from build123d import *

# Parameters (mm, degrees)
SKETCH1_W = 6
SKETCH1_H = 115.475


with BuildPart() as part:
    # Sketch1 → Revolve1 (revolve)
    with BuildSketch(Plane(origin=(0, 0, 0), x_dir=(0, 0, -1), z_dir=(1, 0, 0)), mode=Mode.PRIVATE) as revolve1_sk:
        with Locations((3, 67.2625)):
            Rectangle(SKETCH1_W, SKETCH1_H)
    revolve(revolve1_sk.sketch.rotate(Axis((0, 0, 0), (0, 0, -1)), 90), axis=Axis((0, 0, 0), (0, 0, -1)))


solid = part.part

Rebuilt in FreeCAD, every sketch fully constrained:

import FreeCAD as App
import Part
import Sketcher
from FreeCAD import Vector


def add_polygon(sketch, points):
    """Adds a closed chain of lines whose ends are joined by coincident constraints."""
    first, n = sketch.GeometryCount, len(points)
    for a, b in zip(points, points[1:] + points[:1]):
        sketch.addGeometry(Part.LineSegment(App.Vector(*a, 0), App.Vector(*b, 0)), False)
    for i in range(n):
        sketch.addConstraint(Sketcher.Constraint("Coincident", first + i, 2, first + (i + 1) % n, 1))

doc = App.newDocument("Part")
params = doc.addObject("Spreadsheet::Sheet", "Params")
for row, (alias, value) in enumerate([
    ("sketch1_height", "6 mm"),
    ("revolution_angle", "360 deg"),
], start=1):
    params.set(f"A{row}", alias)
    params.set(f"B{row}", "=" + value)
    params.setAlias(f"B{row}", alias)

body = doc.addObject("PartDesign::Body", "Body")

# Sketch on YZ plane
sketch1 = body.newObject("Sketcher::SketchObject", "Sketch")
sketch1.AttachmentSupport = (doc.getObject("YZ_Plane"), [""])
sketch1.MapMode = "FlatFace"
add_polygon(sketch1, [(125, 0), (9.525, 0), (9.525, -6), (125, -6)])  # lines 0-3
sketch1.addConstraint([
    Sketcher.Constraint("Horizontal", 0),
    Sketcher.Constraint("Vertical", 1),
    Sketcher.Constraint("Horizontal", 2),
    Sketcher.Constraint("Vertical", 3),
    Sketcher.Constraint("PointOnObject", 0, 2, -1),
    Sketcher.Constraint("DistanceY", 1, 2, 1, 1, 6.0),
    Sketcher.Constraint("DistanceX", -1, 1, 2, 2, 125.0),
    Sketcher.Constraint("DistanceX", 0, 2, 0, 1, 115.475),
])
sketch1.setExpression("Constraints[9]", "Params.sketch1_height")
revolution = body.newObject("PartDesign::Revolution", "Revolution")
revolution.Profile = sketch1
revolution.ReferenceAxis = (sketch1, ["V_Axis"])
revolution.setExpression("Angle", "Params.revolution_angle")

doc.recompute()
